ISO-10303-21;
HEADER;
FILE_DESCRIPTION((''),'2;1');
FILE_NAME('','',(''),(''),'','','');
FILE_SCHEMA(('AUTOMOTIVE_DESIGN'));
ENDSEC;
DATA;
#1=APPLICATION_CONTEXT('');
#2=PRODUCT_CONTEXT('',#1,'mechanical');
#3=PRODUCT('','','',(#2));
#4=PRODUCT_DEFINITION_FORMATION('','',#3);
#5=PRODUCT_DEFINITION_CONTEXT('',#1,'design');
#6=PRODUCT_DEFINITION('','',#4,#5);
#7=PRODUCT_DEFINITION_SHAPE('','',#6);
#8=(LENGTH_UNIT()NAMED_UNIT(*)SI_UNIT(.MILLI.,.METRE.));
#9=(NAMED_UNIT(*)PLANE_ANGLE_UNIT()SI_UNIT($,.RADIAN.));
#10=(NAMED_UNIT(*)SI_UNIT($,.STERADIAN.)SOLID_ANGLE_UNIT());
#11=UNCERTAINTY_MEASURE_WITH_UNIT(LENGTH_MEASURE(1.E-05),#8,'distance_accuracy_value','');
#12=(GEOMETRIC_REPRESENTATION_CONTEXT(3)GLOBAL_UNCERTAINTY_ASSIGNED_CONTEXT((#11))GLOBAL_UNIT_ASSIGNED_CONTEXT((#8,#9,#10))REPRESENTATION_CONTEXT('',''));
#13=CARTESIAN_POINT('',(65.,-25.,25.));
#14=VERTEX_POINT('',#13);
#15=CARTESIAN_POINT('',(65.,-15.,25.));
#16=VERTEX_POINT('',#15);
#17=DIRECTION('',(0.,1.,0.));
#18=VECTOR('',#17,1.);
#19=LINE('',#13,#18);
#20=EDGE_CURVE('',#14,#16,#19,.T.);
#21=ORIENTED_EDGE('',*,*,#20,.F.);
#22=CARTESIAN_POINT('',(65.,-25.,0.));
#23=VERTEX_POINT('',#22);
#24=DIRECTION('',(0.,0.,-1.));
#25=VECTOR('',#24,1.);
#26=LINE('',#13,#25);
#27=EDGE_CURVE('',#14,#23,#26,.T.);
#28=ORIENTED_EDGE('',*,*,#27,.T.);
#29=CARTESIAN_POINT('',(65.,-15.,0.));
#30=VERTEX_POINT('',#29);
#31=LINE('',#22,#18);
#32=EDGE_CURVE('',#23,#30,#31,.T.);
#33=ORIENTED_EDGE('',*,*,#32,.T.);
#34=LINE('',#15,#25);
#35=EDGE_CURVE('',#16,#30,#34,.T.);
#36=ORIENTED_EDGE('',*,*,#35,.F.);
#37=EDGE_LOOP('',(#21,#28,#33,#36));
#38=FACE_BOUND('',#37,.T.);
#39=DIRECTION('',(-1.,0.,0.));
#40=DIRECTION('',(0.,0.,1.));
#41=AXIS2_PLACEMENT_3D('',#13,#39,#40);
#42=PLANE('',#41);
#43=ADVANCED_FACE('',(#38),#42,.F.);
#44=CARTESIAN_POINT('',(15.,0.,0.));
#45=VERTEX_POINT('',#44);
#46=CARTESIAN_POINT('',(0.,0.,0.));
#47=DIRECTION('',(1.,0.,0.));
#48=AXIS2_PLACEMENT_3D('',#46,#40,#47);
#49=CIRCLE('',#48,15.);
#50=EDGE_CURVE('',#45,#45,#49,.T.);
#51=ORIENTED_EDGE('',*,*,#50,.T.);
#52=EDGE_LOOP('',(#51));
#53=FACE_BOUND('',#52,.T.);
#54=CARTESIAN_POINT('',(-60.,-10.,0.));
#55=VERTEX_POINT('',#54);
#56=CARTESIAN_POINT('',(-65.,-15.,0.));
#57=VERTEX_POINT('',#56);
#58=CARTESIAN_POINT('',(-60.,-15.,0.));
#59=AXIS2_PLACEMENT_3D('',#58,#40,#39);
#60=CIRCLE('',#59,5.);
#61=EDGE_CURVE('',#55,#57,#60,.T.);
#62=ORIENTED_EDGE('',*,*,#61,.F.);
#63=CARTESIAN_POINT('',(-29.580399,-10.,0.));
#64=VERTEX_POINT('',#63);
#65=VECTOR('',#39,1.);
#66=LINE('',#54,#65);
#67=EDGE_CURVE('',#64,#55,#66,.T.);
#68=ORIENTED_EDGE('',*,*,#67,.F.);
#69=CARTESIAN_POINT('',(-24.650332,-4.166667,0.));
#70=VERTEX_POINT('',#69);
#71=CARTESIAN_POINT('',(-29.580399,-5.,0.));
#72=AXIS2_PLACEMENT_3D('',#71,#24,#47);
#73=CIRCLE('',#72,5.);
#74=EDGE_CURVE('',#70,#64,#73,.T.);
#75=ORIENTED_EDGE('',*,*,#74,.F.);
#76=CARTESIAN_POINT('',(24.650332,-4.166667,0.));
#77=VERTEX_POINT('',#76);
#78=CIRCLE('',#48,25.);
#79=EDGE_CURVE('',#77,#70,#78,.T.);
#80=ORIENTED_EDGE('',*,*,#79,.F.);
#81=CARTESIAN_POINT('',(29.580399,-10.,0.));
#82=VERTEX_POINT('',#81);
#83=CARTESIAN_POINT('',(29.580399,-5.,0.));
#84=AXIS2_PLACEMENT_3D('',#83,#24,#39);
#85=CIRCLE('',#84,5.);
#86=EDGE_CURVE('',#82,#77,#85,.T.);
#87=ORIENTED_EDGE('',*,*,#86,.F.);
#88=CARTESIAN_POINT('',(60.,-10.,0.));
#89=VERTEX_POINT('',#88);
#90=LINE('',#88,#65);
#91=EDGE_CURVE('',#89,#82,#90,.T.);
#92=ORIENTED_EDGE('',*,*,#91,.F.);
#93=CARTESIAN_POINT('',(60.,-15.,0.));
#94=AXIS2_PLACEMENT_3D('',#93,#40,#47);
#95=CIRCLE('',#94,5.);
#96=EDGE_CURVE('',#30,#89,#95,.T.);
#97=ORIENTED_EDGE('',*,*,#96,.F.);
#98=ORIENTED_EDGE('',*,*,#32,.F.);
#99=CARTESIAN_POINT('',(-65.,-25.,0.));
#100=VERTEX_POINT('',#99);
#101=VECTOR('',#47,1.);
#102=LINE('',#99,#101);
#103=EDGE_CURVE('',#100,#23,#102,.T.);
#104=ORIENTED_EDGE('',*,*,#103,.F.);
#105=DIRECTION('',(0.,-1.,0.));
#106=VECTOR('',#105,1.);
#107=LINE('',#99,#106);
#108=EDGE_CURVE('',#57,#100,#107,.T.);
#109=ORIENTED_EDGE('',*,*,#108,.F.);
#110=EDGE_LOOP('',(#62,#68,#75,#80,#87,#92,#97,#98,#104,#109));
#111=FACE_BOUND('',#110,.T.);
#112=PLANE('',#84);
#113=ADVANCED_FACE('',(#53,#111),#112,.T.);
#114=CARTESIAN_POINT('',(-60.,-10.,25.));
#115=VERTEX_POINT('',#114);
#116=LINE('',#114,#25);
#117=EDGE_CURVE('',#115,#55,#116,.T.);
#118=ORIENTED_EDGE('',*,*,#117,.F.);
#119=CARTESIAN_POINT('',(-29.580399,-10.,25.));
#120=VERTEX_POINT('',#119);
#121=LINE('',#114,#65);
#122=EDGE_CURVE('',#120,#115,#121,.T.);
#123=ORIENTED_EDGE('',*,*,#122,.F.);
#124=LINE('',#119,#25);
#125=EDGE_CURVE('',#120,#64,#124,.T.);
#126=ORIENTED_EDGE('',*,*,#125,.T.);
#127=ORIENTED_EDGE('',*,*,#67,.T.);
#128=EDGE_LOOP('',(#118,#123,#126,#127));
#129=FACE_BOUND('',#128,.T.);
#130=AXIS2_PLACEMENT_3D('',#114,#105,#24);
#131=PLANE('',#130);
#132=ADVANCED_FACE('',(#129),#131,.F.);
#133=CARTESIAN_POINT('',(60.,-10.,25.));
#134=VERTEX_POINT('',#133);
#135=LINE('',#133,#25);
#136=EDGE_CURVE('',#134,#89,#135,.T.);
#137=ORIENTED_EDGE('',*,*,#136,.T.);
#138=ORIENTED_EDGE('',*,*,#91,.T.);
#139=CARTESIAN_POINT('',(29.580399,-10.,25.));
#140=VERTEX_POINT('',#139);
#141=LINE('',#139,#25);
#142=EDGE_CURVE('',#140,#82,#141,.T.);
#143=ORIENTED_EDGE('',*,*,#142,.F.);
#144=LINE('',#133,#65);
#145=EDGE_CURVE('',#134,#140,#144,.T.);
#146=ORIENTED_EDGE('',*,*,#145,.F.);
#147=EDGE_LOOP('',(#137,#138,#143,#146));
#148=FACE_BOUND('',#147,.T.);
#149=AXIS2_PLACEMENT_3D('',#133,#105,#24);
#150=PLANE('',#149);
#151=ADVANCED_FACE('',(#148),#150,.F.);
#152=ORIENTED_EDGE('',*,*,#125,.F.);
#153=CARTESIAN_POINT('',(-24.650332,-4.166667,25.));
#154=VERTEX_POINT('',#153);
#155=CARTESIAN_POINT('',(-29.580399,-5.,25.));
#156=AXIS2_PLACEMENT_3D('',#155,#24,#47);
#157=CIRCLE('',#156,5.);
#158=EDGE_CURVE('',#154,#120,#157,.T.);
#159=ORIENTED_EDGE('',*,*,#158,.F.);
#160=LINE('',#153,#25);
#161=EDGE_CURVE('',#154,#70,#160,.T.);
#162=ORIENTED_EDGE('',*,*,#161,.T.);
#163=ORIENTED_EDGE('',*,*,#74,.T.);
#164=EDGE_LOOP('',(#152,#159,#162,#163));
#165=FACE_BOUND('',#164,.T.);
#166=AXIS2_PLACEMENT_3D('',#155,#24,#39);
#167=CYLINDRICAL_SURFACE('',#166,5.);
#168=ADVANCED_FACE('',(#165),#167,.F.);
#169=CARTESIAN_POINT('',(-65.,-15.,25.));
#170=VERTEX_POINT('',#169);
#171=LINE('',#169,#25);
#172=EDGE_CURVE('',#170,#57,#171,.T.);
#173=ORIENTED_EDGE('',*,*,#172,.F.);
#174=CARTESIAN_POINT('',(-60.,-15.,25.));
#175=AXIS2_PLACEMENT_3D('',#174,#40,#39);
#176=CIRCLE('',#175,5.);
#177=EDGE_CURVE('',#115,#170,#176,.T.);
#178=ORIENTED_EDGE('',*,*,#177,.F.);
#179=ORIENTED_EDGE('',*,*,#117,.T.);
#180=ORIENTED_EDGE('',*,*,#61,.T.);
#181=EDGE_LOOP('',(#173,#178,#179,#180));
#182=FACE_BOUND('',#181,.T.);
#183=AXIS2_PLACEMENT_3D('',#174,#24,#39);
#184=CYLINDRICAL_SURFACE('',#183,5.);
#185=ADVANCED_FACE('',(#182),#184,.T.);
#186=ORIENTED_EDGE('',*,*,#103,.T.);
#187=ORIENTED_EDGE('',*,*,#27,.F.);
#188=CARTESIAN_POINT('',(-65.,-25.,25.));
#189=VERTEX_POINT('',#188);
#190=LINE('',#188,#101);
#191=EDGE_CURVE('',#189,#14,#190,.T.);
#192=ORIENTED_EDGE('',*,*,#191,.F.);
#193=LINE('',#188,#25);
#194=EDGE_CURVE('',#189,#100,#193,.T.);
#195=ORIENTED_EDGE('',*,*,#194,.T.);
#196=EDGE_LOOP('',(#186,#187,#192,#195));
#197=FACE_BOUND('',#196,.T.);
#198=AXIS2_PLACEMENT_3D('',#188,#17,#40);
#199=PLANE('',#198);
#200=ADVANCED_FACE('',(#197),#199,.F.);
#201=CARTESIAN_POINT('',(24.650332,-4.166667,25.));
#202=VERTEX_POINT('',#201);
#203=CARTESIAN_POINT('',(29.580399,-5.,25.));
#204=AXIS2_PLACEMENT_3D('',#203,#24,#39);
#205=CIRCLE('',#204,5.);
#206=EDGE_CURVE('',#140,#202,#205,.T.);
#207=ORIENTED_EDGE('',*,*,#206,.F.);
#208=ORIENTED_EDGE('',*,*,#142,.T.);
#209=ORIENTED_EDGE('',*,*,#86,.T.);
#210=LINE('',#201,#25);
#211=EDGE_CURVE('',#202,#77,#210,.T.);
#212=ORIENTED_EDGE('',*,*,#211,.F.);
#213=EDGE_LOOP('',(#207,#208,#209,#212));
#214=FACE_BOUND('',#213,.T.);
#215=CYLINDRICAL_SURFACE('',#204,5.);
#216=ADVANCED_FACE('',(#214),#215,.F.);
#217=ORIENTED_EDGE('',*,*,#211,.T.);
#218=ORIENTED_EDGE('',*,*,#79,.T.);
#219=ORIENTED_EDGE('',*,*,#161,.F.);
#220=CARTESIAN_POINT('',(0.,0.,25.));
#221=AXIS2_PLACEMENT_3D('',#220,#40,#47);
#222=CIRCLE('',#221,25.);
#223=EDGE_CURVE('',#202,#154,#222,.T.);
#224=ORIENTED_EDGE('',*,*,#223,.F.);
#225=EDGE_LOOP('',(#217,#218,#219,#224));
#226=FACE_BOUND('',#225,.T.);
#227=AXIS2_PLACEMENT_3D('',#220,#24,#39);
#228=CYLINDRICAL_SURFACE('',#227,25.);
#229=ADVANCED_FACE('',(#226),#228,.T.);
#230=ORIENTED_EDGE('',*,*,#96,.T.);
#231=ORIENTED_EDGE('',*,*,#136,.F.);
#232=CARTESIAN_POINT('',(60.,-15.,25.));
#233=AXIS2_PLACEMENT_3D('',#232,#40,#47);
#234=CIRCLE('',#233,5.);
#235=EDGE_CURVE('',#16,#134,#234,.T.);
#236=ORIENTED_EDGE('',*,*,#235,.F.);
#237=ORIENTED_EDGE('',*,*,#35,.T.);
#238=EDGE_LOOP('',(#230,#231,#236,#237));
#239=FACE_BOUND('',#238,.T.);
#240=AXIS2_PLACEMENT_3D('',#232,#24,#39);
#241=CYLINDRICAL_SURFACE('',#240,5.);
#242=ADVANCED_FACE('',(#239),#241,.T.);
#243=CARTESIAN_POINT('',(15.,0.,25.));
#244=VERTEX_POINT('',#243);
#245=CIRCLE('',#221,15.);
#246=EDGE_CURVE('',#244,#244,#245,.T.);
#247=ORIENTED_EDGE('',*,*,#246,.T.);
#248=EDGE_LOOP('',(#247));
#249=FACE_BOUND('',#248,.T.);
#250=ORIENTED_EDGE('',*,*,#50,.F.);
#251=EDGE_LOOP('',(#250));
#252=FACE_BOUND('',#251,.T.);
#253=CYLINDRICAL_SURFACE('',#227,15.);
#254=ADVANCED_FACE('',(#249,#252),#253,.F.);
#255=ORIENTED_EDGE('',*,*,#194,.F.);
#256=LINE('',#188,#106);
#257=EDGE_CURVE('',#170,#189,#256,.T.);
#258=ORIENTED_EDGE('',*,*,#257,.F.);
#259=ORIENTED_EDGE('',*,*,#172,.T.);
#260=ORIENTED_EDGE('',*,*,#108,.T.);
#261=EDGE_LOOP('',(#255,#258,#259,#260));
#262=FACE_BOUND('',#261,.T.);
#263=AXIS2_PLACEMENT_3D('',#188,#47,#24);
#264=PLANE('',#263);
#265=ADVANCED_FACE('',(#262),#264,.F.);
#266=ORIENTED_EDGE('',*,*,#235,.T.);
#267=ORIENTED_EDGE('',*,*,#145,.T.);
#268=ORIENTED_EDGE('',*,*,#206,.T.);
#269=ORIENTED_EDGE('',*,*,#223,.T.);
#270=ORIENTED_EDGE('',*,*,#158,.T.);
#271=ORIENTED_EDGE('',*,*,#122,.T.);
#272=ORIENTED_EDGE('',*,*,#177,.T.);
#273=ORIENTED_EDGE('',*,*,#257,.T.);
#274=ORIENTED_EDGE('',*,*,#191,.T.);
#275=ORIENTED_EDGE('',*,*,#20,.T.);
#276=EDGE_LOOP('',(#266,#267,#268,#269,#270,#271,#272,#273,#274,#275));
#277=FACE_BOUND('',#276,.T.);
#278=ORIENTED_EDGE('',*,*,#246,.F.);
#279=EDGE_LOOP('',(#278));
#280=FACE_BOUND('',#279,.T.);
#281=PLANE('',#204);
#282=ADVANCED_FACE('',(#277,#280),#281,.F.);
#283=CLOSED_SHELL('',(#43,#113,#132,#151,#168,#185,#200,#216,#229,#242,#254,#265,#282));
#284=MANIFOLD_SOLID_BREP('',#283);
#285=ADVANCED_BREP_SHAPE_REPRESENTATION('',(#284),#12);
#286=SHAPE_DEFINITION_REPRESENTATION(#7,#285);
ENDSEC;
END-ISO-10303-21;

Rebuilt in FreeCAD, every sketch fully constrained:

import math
import FreeCAD as App
import Part
import Sketcher

doc = App.newDocument("Part")
body = doc.addObject("PartDesign::Body", "Body")

# Sketch on XY plane
sketch1 = body.newObject("Sketcher::SketchObject", "Sketch")
sketch1.AttachmentSupport = (doc.getObject("XY_Plane"), [""])
sketch1.MapMode = "FlatFace"
sketch1.addGeometry(Part.LineSegment(App.Vector(-65, -15, 0), App.Vector(-65, -25, 0)), False)
sketch1.addGeometry(Part.LineSegment(App.Vector(-65, -25, 0), App.Vector(65, -25, 0)), False)
sketch1.addGeometry(Part.LineSegment(App.Vector(65, -25, 0), App.Vector(65, -15, 0)), False)
sketch1.addGeometry(Part.ArcOfCircle(Part.Circle(App.Vector(60, -15, 0), App.Vector(0, 0, 1), 5), math.radians(0), math.radians(90)), False)
sketch1.addGeometry(Part.LineSegment(App.Vector(60, -10, 0), App.Vector(29.580399, -10, 0)), False)
sketch1.addGeometry(Part.ArcOfCircle(Part.Circle(App.Vector(29.580399, -5, 0), App.Vector(0, 0, 1), 5), math.radians(170.405932), math.radians(270)), False)
sketch1.addGeometry(Part.ArcOfCircle(Part.Circle(App.Vector(0, 0, 0), App.Vector(0, 0, 1), 25), math.radians(-9.594068), math.radians(189.594068)), False)
sketch1.addGeometry(Part.ArcOfCircle(Part.Circle(App.Vector(-29.580399, -5, 0), App.Vector(0, 0, 1), 5), math.radians(-90), math.radians(9.594068)), False)
sketch1.addGeometry(Part.LineSegment(App.Vector(-29.580399, -10, 0), App.Vector(-60, -10, 0)), False)
sketch1.addGeometry(Part.ArcOfCircle(Part.Circle(App.Vector(-60, -15, 0), App.Vector(0, 0, 1), 5), math.radians(90), math.radians(180)), False)
sketch1.addGeometry(Part.Circle(App.Vector(0, 0, 0), App.Vector(0, 0, 1), 15), False)
sketch1.addConstraint(Sketcher.Constraint("Coincident", 0, 2, 1, 1))
sketch1.addConstraint(Sketcher.Constraint("Coincident", 1, 2, 2, 1))
sketch1.addConstraint(Sketcher.Constraint("Tangent", 2, 2, 3, 1))
sketch1.addConstraint(Sketcher.Constraint("Tangent", 3, 2, 4, 1))
sketch1.addConstraint(Sketcher.Constraint("Tangent", 4, 2, 5, 2))
sketch1.addConstraint(Sketcher.Constraint("Tangent", 5, 1, 6, 1))
sketch1.addConstraint(Sketcher.Constraint("Tangent", 6, 2, 7, 2))
sketch1.addConstraint(Sketcher.Constraint("Tangent", 7, 1, 8, 1))
sketch1.addConstraint(Sketcher.Constraint("Tangent", 8, 2, 9, 1))
sketch1.addConstraint(Sketcher.Constraint("Tangent", 9, 2, 0, 1))
sketch1.addConstraint(Sketcher.Constraint("Vertical", 0))
sketch1.addConstraint(Sketcher.Constraint("Horizontal", 1))
sketch1.addConstraint(Sketcher.Constraint("Vertical", 2))
sketch1.addConstraint(Sketcher.Constraint("Horizontal", 4))
sketch1.addConstraint(Sketcher.Constraint("Horizontal", 8))
sketch1.addConstraint(Sketcher.Constraint("Coincident", 6, 3, -1, 1))
sketch1.addConstraint(Sketcher.Constraint("Coincident", 10, 3, -1, 1))
sketch1.addConstraint(Sketcher.Constraint("Equal", 3, 5))
sketch1.addConstraint(Sketcher.Constraint("Equal", 5, 7))
sketch1.addConstraint(Sketcher.Constraint("Equal", 7, 9))
sketch1.addConstraint(Sketcher.Constraint("Symmetric", 3, 3, 9, 3, -2))
sketch1.addConstraint(Sketcher.Constraint("Diameter", 10, 30.0))
sketch1.addConstraint(Sketcher.Constraint("Radius", 3, 5.0))
sketch1.addConstraint(Sketcher.Constraint("Radius", 6, 25.0))
sketch1.addConstraint(Sketcher.Constraint("DistanceX", 1, 1, 1, 2, 130.0))
sketch1.addConstraint(Sketcher.Constraint("DistanceY", 0, 2, 0, 1, 10.0))
sketch1.addConstraint(Sketcher.Constraint("DistanceY", 3, 3, -1, 1, 15.0))
pad1 = body.newObject("PartDesign::Pad", "Pad")
pad1.Profile = sketch1
pad1.Length = 25

doc.recompute()
